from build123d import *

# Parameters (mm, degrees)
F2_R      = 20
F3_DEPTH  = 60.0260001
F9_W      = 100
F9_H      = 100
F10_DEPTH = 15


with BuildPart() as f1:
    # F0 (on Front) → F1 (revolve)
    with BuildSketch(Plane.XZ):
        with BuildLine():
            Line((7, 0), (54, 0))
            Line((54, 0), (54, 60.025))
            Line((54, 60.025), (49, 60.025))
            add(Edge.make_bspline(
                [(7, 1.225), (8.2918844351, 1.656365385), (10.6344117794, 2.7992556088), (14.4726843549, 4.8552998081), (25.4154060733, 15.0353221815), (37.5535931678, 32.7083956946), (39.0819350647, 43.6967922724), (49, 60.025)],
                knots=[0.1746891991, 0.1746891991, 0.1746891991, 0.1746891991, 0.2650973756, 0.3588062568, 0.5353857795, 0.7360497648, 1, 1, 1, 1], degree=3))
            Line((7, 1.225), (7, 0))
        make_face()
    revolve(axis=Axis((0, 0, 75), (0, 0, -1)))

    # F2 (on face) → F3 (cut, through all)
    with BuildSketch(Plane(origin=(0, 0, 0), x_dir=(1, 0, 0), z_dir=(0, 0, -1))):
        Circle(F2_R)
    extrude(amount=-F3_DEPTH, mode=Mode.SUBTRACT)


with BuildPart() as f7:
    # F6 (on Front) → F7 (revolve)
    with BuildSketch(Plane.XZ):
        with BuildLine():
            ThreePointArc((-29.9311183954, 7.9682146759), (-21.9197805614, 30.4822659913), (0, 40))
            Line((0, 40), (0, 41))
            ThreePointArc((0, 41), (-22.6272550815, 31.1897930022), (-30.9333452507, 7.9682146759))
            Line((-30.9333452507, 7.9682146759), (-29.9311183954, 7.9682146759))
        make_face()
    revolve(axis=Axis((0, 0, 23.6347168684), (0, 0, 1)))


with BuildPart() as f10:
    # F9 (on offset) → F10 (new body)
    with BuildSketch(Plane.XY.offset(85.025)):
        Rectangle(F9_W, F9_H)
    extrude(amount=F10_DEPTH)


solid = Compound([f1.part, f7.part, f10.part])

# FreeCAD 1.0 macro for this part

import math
import FreeCAD as App
import Part
import Sketcher

V = App.Vector
Q = App.Units.Quantity

doc = App.newDocument("Part")
body = doc.addObject("PartDesign::Body", "Body")

sketch1 = body.newObject("Sketcher::SketchObject", "Sketch")
sketch1.AttachmentSupport = (doc.getObject("XZ_Plane"), [""])
sketch1.MapMode = "FlatFace"
sketch1.addGeometry(Part.LineSegment(V(7, 0, 0), V(54, 0, 0)), False)
sketch1.addGeometry(Part.LineSegment(V(54, 0, 0), V(54, 60.025, 0)), False)
sketch1.addGeometry(Part.LineSegment(V(54, 60.025, 0), V(49, 60.025, 0)), False)
sketch1.addGeometry(Part.BSplineCurve([V(7, 1.225, 0), V(8.291884, 1.656365, 0), V(10.634412, 2.799256, 0), V(14.472684, 4.8553, 0), V(25.415406, 15.035322, 0), V(37.553593, 32.708396, 0), V(39.081935, 43.696792, 0), V(49, 60.025, 0)], [4, 1, 1, 1, 1, 4], [0.174689199, 0.265097376, 0.358806257, 0.535385779, 0.736049765, 1], False, 3, [1, 1, 1, 1, 1, 1, 1, 1], False), False)
sketch1.addGeometry(Part.LineSegment(V(7, 1.225, 0), V(7, 0, 0)), False)
sketch1.addConstraint(Sketcher.Constraint("Block", 3))
sketch1.addConstraint(Sketcher.Constraint("Coincident", 0, 2, 1, 1))
sketch1.addConstraint(Sketcher.Constraint("Coincident", 1, 2, 2, 1))
sketch1.addConstraint(Sketcher.Constraint("Coincident", 2, 2, 3, 2))
sketch1.addConstraint(Sketcher.Constraint("Coincident", 3, 1, 4, 1))
sketch1.addConstraint(Sketcher.Constraint("Coincident", 4, 2, 0, 1))
sketch1.addConstraint(Sketcher.Constraint("Horizontal", 0))
sketch1.addConstraint(Sketcher.Constraint("Vertical", 1))
sketch1.addConstraint(Sketcher.Constraint("Horizontal", 2))
sketch1.addConstraint(Sketcher.Constraint("Vertical", 4))
sketch1.addConstraint(Sketcher.Constraint("PointOnObject", 0, 2, -1))
sketch1.addConstraint(Sketcher.Constraint("DistanceX", 0, 1, 0, 2, Q("47 mm")))
revolution = body.newObject("PartDesign::Revolution", "Revolution")
revolution.Profile = sketch1
revolution.ReferenceAxis = (sketch1, ["V_Axis"])
revolution.Angle = 360

sketch2 = body.newObject("Sketcher::SketchObject", "Sketch001")
sketch2.AttachmentSupport = (doc.getObject("XY_Plane"), [""])
sketch2.MapMode = "FlatFace"
sketch2.addGeometry(Part.Circle(V(0, 0, 0), V(0, 0, 1), 20), False)
sketch2.addConstraint(Sketcher.Constraint("Coincident", 0, 3, -1, 1))
sketch2.addConstraint(Sketcher.Constraint("Diameter", 0, Q("40 mm")))
pocket1 = body.newObject("PartDesign::Pocket", "Pocket")
pocket1.Profile = sketch2
pocket1.Type = "ThroughAll"
pocket1.Reversed = True
body2 = doc.addObject("PartDesign::Body", "Body001")

sketch3 = body2.newObject("Sketcher::SketchObject", "Sketch002")
sketch3.AttachmentSupport = (doc.getObject("XZ_Plane001"), [""])
sketch3.MapMode = "FlatFace"
sketch3.addGeometry(Part.ArcOfCircle(Part.Circle(V(0, 10, 0), V(0, 0, 1), 30), math.radians(90), math.radians(183.883397)), False)
sketch3.addGeometry(Part.LineSegment(V(0, 40, 0), V(0, 41, 0)), False)
sketch3.addGeometry(Part.ArcOfCircle(Part.Circle(V(0, 10, 0), V(0, 0, 1), 31), math.radians(90), math.radians(183.757943)), False)
sketch3.addGeometry(Part.LineSegment(V(-30.933345, 7.968215, 0), V(-29.931118, 7.968215, 0)), False)
sketch3.addConstraint(Sketcher.Constraint("Coincident", 0, 1, 1, 1))
sketch3.addConstraint(Sketcher.Constraint("Coincident", 1, 2, 2, 1))
sketch3.addConstraint(Sketcher.Constraint("Coincident", 2, 2, 3, 1))
sketch3.addConstraint(Sketcher.Constraint("Coincident", 3, 2, 0, 2))
sketch3.addConstraint(Sketcher.Constraint("Vertical", 1))
sketch3.addConstraint(Sketcher.Constraint("Horizontal", 3))
sketch3.addConstraint(Sketcher.Constraint("Coincident", 2, 3, 0, 3))
sketch3.addConstraint(Sketcher.Constraint("PointOnObject", 0, 3, -2))
sketch3.addConstraint(Sketcher.Constraint("PointOnObject", 0, 1, -2))
sketch3.addConstraint(Sketcher.Constraint("Radius", 0, Q("30 mm")))
sketch3.addConstraint(Sketcher.Constraint("Radius", 2, Q("31 mm")))
sketch3.addConstraint(Sketcher.Constraint("DistanceY", -1, 1, 0, 3, Q("10 mm")))
sketch3.addConstraint(Sketcher.Constraint("DistanceX", 3, 2, -1, 1, Q("29.931118 mm")))
revolution2 = body2.newObject("PartDesign::Revolution", "Revolution001")
revolution2.Profile = sketch3
revolution2.ReferenceAxis = (sketch3, ["V_Axis"])
revolution2.Angle = 360
body3 = doc.addObject("PartDesign::Body", "Body002")

sketch4 = body3.newObject("Sketcher::SketchObject", "Sketch003")
sketch4.AttachmentSupport = (doc.getObject("XY_Plane002"), [""])
sketch4.MapMode = "FlatFace"
sketch4.AttachmentOffset = App.Placement(V(0, 0, 85.025), App.Rotation())
sketch4.addGeometry(Part.LineSegment(V(-50, 50, 0), V(-50, -50, 0)), False)
sketch4.addGeometry(Part.LineSegment(V(-50, -50, 0), V(50, -50, 0)), False)
sketch4.addGeometry(Part.LineSegment(V(50, -50, 0), V(50, 50, 0)), False)
sketch4.addGeometry(Part.LineSegment(V(50, 50, 0), V(-50, 50, 0)), False)
sketch4.addConstraint(Sketcher.Constraint("Coincident", 0, 2, 1, 1))
sketch4.addConstraint(Sketcher.Constraint("Coincident", 1, 2, 2, 1))
sketch4.addConstraint(Sketcher.Constraint("Coincident", 2, 2, 3, 1))
sketch4.addConstraint(Sketcher.Constraint("Coincident", 3, 2, 0, 1))
sketch4.addConstraint(Sketcher.Constraint("Vertical", 0))
sketch4.addConstraint(Sketcher.Constraint("Horizontal", 1))
sketch4.addConstraint(Sketcher.Constraint("Vertical", 2))
sketch4.addConstraint(Sketcher.Constraint("Horizontal", 3))
sketch4.addConstraint(Sketcher.Constraint("Symmetric", 0, 2, 2, 2, -1, 1))
sketch4.addConstraint(Sketcher.Constraint("Equal", 3, 0))
sketch4.addConstraint(Sketcher.Constraint("DistanceX", 1, 1, 1, 2, Q("100 mm")))
pad1 = body3.newObject("PartDesign::Pad", "Pad")
pad1.Profile = sketch4
pad1.Length = 15

doc.recompute()
